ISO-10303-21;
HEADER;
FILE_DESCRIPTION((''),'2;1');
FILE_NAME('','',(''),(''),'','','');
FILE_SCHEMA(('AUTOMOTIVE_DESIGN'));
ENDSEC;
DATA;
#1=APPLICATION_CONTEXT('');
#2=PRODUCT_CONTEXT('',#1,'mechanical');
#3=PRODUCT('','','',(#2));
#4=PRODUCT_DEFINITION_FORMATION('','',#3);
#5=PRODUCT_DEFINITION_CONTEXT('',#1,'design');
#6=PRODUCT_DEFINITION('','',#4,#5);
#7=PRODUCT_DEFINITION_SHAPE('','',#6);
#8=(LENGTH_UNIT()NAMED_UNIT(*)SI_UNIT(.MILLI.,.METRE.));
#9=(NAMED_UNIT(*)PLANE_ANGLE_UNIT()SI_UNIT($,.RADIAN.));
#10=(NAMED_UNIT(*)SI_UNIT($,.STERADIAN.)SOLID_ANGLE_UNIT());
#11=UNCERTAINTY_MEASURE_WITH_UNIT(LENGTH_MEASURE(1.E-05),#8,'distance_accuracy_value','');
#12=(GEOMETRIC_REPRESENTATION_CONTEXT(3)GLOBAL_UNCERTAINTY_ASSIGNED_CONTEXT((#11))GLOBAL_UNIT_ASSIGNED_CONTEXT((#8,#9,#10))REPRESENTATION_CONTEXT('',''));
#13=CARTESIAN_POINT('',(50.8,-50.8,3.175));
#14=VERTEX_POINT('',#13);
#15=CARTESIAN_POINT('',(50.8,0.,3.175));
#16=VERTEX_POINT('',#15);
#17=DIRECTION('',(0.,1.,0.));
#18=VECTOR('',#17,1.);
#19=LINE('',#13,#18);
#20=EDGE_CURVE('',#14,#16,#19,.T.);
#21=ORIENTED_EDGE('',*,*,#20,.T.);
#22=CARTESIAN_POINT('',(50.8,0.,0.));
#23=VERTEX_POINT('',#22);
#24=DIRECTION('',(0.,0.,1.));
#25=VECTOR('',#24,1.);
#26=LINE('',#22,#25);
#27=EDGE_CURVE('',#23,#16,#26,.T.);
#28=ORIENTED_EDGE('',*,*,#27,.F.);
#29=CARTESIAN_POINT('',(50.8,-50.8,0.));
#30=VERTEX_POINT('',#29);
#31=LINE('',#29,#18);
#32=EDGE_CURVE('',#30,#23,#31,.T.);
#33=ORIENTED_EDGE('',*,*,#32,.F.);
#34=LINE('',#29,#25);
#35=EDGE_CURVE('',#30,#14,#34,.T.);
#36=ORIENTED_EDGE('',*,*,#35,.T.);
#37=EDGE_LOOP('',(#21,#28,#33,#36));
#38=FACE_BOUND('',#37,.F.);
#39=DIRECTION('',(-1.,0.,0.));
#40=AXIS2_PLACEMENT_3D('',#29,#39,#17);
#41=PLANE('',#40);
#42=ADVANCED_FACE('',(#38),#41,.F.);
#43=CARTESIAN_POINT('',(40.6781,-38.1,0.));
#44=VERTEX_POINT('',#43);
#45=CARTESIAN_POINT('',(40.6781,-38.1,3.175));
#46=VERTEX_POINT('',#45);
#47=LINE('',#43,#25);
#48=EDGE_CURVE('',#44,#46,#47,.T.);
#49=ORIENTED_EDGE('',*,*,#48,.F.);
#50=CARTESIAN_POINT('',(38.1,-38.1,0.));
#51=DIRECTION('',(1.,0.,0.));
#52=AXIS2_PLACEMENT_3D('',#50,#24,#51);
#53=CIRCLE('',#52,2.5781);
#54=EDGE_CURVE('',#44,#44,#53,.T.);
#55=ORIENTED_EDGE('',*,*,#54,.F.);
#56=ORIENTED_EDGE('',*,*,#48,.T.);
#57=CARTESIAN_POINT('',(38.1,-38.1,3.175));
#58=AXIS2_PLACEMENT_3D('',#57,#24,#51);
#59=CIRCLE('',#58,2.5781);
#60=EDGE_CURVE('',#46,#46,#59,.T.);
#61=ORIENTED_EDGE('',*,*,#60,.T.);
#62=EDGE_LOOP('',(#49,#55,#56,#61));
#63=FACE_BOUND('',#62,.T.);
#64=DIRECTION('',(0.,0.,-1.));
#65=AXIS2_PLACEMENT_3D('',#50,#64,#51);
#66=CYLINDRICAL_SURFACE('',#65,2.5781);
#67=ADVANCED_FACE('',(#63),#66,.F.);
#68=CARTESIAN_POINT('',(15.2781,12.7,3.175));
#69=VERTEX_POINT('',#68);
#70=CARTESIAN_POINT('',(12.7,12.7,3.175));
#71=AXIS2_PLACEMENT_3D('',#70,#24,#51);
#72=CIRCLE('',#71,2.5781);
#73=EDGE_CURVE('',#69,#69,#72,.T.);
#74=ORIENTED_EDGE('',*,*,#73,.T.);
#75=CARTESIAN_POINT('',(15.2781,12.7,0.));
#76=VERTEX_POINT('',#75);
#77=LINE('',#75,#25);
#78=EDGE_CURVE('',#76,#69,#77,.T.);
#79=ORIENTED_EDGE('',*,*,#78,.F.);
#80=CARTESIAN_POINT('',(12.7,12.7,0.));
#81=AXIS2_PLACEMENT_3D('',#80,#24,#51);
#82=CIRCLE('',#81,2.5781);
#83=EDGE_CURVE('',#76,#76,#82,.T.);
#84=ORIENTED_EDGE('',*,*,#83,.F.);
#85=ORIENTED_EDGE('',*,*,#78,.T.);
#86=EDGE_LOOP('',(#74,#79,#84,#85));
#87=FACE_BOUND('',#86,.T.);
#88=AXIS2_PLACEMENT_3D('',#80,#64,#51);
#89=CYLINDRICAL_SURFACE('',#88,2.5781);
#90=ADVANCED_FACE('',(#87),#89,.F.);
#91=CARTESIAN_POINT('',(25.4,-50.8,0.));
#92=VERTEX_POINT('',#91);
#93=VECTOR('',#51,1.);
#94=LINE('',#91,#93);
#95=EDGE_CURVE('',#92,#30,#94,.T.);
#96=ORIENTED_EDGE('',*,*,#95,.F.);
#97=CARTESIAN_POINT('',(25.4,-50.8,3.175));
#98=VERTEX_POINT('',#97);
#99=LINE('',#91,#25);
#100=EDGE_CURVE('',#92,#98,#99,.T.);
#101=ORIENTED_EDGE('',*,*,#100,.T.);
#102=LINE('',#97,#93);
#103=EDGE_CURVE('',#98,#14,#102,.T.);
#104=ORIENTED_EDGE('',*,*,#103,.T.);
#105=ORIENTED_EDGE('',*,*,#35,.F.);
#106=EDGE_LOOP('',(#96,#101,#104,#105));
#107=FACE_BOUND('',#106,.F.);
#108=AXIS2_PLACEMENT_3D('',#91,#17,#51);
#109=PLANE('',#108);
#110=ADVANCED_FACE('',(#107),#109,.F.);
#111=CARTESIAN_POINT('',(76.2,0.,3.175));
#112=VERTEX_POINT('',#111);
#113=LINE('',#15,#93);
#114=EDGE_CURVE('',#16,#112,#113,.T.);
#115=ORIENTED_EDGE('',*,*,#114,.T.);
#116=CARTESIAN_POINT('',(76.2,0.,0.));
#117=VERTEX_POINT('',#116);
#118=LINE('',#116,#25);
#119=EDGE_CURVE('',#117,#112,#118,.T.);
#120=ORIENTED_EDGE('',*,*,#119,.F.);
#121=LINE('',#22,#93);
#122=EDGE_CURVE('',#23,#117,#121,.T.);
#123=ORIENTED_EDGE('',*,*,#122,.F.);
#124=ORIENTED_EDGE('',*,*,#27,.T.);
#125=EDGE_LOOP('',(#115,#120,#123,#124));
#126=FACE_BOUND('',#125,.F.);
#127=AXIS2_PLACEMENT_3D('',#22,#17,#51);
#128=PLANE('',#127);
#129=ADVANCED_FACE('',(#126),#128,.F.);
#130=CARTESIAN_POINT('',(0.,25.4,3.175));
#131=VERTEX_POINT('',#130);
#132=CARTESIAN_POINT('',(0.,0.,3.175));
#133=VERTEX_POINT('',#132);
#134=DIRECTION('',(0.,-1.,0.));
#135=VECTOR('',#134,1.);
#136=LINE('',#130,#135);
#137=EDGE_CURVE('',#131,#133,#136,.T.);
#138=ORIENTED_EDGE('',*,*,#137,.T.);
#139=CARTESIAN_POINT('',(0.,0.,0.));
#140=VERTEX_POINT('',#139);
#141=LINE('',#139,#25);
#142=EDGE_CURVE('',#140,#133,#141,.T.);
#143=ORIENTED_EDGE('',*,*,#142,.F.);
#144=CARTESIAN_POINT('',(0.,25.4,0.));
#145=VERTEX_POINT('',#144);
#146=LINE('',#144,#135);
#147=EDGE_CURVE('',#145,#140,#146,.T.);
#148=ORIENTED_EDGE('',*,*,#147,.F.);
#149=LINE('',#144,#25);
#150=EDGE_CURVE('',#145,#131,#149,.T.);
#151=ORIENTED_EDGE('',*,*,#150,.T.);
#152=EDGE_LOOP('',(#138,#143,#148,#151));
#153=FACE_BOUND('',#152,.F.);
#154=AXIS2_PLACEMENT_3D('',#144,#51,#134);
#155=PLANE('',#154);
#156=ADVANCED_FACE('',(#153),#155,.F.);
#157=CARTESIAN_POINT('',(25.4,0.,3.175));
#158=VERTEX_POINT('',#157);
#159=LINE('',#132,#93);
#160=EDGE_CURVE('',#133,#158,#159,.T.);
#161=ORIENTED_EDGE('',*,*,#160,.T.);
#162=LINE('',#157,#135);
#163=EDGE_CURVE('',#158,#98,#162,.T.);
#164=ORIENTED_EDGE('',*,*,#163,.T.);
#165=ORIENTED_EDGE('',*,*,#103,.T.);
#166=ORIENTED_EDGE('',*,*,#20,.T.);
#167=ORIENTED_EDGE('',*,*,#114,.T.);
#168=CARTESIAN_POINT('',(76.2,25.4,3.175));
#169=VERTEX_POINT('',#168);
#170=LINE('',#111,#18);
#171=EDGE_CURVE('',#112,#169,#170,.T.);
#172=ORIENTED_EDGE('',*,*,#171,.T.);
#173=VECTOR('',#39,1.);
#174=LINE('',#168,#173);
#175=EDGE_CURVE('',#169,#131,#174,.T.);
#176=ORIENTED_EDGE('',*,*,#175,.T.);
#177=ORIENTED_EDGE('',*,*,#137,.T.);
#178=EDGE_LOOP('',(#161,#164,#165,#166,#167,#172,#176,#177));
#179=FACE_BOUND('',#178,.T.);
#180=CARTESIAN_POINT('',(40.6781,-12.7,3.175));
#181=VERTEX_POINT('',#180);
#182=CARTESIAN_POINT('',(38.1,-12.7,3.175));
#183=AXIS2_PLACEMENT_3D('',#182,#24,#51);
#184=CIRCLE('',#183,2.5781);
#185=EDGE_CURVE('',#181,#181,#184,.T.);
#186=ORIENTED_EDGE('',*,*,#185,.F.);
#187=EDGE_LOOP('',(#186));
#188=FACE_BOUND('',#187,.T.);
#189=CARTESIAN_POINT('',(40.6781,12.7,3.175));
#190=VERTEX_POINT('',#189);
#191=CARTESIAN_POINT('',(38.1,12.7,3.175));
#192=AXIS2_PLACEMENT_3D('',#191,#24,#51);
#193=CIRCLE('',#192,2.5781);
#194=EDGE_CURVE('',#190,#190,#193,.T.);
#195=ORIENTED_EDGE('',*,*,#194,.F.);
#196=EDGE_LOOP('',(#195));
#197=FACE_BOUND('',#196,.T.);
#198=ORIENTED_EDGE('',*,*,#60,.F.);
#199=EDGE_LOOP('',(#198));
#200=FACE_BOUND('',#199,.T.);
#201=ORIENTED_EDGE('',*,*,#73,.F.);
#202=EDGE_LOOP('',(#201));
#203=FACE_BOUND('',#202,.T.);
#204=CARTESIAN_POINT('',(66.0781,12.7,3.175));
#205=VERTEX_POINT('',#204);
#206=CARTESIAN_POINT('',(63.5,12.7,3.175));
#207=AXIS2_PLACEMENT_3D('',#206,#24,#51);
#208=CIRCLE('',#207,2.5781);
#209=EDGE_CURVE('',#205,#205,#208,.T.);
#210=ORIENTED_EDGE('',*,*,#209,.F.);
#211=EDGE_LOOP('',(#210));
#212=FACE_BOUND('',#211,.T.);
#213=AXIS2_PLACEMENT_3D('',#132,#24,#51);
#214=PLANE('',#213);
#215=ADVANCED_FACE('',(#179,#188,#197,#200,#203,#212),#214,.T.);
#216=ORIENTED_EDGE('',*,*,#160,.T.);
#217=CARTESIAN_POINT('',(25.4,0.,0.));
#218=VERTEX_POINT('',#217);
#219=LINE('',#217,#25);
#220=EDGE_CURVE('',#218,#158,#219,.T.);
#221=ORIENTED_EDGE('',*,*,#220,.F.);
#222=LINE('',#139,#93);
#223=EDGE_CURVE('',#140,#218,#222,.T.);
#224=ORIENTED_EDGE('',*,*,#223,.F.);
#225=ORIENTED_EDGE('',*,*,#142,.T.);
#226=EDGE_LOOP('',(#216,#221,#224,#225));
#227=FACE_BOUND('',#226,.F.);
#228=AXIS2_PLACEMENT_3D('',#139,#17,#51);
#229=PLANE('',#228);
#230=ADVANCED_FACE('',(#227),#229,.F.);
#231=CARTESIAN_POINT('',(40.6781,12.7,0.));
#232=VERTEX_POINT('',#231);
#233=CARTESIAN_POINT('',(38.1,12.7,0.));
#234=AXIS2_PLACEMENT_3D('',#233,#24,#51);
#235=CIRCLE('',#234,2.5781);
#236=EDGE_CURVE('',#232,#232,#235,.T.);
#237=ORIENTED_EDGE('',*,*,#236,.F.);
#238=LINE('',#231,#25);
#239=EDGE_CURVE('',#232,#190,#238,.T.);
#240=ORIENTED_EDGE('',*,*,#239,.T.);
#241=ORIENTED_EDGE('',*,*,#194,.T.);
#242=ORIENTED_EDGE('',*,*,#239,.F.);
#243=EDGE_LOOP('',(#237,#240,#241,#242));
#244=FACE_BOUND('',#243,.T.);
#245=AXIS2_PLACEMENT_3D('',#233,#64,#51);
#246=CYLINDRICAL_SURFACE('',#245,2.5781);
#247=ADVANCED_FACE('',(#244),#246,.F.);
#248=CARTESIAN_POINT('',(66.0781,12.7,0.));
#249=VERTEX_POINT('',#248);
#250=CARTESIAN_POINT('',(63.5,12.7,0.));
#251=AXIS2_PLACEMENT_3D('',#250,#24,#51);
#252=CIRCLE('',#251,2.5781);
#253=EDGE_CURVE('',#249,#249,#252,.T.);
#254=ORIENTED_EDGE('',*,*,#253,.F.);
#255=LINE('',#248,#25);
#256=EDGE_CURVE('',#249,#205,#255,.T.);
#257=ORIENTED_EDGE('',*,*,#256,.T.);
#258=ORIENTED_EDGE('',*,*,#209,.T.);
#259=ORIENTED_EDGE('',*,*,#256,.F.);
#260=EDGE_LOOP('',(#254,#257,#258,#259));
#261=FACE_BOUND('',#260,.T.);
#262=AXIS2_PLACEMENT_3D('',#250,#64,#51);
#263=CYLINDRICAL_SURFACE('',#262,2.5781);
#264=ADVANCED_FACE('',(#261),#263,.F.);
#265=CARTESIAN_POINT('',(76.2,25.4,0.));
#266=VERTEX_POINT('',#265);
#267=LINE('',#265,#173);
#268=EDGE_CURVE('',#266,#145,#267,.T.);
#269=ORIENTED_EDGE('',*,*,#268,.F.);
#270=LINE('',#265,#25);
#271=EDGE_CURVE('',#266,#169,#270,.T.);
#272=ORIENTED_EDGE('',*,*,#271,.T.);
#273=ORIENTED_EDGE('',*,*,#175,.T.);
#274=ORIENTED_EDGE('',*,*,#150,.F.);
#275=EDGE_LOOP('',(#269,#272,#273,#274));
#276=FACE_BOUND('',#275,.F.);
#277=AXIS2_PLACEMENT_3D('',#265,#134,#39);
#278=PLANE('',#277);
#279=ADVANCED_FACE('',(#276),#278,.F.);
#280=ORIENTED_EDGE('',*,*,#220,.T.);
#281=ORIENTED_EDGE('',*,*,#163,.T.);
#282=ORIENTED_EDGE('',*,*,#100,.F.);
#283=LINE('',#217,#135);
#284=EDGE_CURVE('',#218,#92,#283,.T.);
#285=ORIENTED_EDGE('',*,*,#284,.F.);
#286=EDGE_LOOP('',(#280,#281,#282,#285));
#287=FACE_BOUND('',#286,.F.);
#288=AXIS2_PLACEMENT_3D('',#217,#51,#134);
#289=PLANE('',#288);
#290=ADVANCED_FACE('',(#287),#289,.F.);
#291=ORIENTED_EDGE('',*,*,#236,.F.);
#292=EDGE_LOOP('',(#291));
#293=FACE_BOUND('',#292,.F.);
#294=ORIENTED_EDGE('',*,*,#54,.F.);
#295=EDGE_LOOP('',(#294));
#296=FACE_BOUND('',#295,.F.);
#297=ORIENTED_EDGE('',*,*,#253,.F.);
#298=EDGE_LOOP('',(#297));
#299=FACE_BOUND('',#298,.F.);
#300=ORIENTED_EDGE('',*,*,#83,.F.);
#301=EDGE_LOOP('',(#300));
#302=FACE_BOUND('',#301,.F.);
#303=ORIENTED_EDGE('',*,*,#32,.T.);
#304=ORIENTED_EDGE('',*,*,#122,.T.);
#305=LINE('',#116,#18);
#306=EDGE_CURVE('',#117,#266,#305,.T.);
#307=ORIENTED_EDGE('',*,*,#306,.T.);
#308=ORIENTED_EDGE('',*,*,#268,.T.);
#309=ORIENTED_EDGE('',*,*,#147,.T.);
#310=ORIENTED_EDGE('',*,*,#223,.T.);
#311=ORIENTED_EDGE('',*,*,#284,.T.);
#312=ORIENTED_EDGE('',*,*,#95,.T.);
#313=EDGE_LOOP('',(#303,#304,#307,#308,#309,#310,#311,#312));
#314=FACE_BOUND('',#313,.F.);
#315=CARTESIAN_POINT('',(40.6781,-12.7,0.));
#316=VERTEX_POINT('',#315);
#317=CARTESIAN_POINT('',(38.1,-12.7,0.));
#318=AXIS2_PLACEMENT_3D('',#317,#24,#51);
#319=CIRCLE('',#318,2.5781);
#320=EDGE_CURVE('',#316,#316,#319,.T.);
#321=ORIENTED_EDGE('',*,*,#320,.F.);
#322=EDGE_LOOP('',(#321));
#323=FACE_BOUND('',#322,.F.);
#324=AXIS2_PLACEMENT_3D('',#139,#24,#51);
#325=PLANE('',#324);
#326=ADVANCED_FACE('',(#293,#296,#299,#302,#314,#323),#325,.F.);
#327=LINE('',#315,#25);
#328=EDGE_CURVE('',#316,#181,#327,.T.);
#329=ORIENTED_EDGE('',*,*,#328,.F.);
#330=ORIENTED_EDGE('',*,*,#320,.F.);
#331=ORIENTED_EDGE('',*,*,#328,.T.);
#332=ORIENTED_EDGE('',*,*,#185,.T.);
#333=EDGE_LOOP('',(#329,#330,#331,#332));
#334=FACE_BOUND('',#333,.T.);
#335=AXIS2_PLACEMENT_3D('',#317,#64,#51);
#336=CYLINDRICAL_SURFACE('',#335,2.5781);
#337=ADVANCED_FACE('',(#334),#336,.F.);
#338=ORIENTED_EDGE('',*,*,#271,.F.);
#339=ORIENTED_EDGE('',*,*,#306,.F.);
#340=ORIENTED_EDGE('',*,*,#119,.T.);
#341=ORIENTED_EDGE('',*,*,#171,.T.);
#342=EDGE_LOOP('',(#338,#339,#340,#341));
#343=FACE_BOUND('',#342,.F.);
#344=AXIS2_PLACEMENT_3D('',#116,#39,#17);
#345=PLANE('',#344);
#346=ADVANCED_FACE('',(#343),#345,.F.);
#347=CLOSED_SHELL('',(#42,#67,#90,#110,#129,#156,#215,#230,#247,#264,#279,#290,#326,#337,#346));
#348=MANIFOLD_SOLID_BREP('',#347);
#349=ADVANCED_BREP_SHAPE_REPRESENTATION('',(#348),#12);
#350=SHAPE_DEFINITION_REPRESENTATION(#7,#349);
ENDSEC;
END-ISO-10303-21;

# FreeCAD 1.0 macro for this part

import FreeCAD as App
import Part
import Sketcher
Q = App.Units.Quantity

doc = App.newDocument("Part")
body = doc.addObject("PartDesign::Body", "Body")

sketch1 = body.newObject("Sketcher::SketchObject", "Sketch")
sketch1.AttachmentSupport = (doc.getObject("XY_Plane"), [""])
sketch1.MapMode = "FlatFace"
sketch1.addGeometry([
    Part.LineSegment(App.Vector(50.8, 0, 0), App.Vector(76.2, 0, 0)),
    Part.LineSegment(App.Vector(76.2, 0, 0), App.Vector(76.2, 25.4, 0)),
    Part.LineSegment(App.Vector(76.2, 25.4, 0), App.Vector(0, 25.4, 0)),
    Part.LineSegment(App.Vector(0, 25.4, 0), App.Vector(0, 0, 0)),
    Part.LineSegment(App.Vector(0, 0, 0), App.Vector(25.4, 0, 0)),
    Part.LineSegment(App.Vector(25.4, 0, 0), App.Vector(25.4, -50.8, 0)),
    Part.LineSegment(App.Vector(25.4, -50.8, 0), App.Vector(50.8, -50.8, 0)),
    Part.LineSegment(App.Vector(50.8, -50.8, 0), App.Vector(50.8, 0, 0)),
    Part.Circle(App.Vector(38.1, -38.1, 0), App.Vector(0, 0, 1), 2.6),
    Part.Circle(App.Vector(12.7, 12.7, 0), App.Vector(0, 0, 1), 2.6),
    Part.Circle(App.Vector(38.1, -12.7, 0), App.Vector(0, 0, 1), 2.6),
    Part.Circle(App.Vector(38.1, 12.7, 0), App.Vector(0, 0, 1), 2.6),
    Part.Circle(App.Vector(63.5, 12.7, 0), App.Vector(0, 0, 1), 2.6),
], False)
sketch1.addConstraint([
    Sketcher.Constraint("Coincident", 0, 2, 1, 1),
    Sketcher.Constraint("Coincident", 1, 2, 2, 1),
    Sketcher.Constraint("Coincident", 2, 2, 3, 1),
    Sketcher.Constraint("Coincident", 3, 2, 4, 1),
    Sketcher.Constraint("Coincident", 4, 2, 5, 1),
    Sketcher.Constraint("Coincident", 5, 2, 6, 1),
    Sketcher.Constraint("Coincident", 6, 2, 7, 1),
    Sketcher.Constraint("Coincident", 7, 2, 0, 1),
    Sketcher.Constraint("Horizontal", 0),
    Sketcher.Constraint("Vertical", 1),
    Sketcher.Constraint("Horizontal", 2),
    Sketcher.Constraint("Vertical", 3),
    Sketcher.Constraint("Horizontal", 4),
    Sketcher.Constraint("Vertical", 5),
    Sketcher.Constraint("Horizontal", 6),
    Sketcher.Constraint("Vertical", 7),
    Sketcher.Constraint("Coincident", 3, 2, -1, 1),
    Sketcher.Constraint("Equal", 8, 9),
    Sketcher.Constraint("Equal", 9, 10),
    Sketcher.Constraint("Equal", 10, 11),
    Sketcher.Constraint("Equal", 11, 12),
    Sketcher.Constraint("Symmetric", 10, 3, 11, 3, -1),
    Sketcher.Constraint("PointOnObject", 0, 2, -1),
    Sketcher.Constraint("Horizontal", 9, 3, 11, 3),
    Sketcher.Constraint("Horizontal", 11, 3, 12, 3),
    Sketcher.Constraint("Vertical", 8, 3, 10, 3),
    Sketcher.Constraint("Equal", 0, 4),
    Sketcher.Constraint("Equal", 4, 6),
    Sketcher.Constraint("Equal", 6, 1),
    Sketcher.Constraint("DistanceX", 0, 1, 0, 2, Q("1 in")),
    Sketcher.Constraint("DistanceY", 5, 2, 5, 1, Q("2 in")),
    Sketcher.Constraint("Diameter", 8, Q("0.203 in")),
    Sketcher.Constraint("DistanceX", 9, 3, 8, 3, Q("1 in")),
    Sketcher.Constraint("DistanceY", 8, 3, 9, 3, Q("2 in")),
    Sketcher.Constraint("DistanceY", 8, 3, 10, 3, Q("1 in")),
    Sketcher.Constraint("DistanceX", 11, 3, 12, 3, Q("1 in")),
    Sketcher.Constraint("DistanceX", -1, 1, 8, 3, Q("1.5 in")),
])
pad1 = body.newObject("PartDesign::Pad", "Pad")
pad1.Profile = sketch1
pad1.Length = Q("0.125 in")

doc.recompute()
